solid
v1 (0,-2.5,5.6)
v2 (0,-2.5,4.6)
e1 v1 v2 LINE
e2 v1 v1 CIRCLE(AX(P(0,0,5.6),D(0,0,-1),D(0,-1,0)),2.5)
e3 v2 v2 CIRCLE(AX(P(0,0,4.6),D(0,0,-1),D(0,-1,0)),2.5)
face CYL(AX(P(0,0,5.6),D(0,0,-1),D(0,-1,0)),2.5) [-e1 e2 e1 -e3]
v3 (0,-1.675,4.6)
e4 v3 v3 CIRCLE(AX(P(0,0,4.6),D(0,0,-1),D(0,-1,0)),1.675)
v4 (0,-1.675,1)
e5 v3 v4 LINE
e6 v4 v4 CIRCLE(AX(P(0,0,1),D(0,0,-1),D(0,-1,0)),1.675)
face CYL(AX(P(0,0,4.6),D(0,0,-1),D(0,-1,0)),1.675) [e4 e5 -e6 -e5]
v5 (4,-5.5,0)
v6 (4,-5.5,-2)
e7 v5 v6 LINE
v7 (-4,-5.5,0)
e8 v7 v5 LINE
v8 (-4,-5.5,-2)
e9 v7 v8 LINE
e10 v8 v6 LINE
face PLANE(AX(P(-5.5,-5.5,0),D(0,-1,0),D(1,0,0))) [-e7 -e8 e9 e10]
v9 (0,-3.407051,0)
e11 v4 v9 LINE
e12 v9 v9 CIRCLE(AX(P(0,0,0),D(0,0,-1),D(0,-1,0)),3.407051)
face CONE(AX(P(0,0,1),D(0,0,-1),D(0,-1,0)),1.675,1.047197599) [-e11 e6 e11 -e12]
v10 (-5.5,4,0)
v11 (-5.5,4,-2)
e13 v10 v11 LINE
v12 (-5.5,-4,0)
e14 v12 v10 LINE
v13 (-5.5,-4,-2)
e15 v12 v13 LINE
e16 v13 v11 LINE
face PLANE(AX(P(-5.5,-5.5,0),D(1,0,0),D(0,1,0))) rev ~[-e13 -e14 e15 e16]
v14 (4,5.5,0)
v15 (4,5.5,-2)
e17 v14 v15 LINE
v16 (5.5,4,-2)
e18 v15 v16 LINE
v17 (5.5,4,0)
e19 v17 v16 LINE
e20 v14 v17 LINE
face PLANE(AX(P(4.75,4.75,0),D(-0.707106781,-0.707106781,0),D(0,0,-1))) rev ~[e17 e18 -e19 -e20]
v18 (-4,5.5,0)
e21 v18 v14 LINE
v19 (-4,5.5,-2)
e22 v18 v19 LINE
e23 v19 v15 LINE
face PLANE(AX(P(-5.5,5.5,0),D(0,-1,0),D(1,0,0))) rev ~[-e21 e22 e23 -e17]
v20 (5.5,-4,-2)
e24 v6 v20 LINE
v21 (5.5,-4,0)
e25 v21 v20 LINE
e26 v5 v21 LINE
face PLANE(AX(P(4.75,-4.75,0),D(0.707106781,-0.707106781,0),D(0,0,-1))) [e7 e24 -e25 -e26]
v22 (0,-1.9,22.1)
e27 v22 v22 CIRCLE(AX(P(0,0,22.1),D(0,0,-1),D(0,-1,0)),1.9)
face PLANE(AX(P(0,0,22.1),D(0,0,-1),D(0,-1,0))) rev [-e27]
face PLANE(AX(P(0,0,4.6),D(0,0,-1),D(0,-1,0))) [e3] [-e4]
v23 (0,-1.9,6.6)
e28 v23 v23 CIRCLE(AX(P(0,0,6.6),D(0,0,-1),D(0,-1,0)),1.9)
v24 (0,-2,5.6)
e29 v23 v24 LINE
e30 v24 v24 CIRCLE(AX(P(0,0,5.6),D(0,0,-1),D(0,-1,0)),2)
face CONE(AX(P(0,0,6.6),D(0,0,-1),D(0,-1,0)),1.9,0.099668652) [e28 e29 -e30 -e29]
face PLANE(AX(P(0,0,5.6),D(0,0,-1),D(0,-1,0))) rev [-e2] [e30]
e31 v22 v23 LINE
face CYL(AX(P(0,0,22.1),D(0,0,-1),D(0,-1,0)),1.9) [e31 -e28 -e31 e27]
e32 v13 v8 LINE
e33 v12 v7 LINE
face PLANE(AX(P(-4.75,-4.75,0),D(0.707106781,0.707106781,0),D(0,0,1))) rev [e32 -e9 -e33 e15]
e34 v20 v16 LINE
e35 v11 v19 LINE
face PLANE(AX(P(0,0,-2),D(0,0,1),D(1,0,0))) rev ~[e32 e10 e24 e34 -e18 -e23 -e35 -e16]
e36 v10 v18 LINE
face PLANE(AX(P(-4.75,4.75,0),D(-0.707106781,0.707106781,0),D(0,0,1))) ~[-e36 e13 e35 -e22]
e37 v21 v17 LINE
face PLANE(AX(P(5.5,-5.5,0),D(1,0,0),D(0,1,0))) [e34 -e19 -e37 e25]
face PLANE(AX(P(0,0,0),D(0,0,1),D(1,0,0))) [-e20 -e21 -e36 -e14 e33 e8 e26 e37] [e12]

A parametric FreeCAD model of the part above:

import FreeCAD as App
import Part
import Sketcher
from FreeCAD import Vector
Q = App.Units.Quantity


def edges_at(feature, points):
    """Names of the edges that pass closest to the given points."""
    edges = feature.Shape.Edges
    near = lambda p: min(range(len(edges)), key=lambda i: edges[i].distToShape(Part.Vertex(*p))[0])
    return sorted({f"Edge{near(p) + 1}" for p in points})

doc = App.newDocument("Part")
body = doc.addObject("PartDesign::Body", "Body")

# Sketch on YZ plane
sketch1 = body.newObject("Sketcher::SketchObject", "Sketch")
sketch1.AttachmentSupport = (doc.getObject("YZ_Plane"), [""])
sketch1.MapMode = "FlatFace"
sketch1.addGeometry(Part.LineSegment(Vector(-1.675, 1, 0), Vector(-3.407051, 0, 0)), False)
sketch1.addGeometry(Part.LineSegment(Vector(-3.407051, 0, 0), Vector(0, 0, 0)), False)
sketch1.addGeometry(Part.LineSegment(Vector(0, 0, 0), Vector(0, 22.1, 0)), False)
sketch1.addGeometry(Part.LineSegment(Vector(0, 22.1, 0), Vector(-1.9, 22.1, 0)), False)
sketch1.addGeometry(Part.LineSegment(Vector(-1.9, 22.1, 0), Vector(-1.9, 6.6, 0)), False)
sketch1.addGeometry(Part.LineSegment(Vector(-1.9, 6.6, 0), Vector(-2, 5.6, 0)), False)
sketch1.addGeometry(Part.LineSegment(Vector(-2, 5.6, 0), Vector(-2.5, 5.6, 0)), False)
sketch1.addGeometry(Part.LineSegment(Vector(-2.5, 5.6, 0), Vector(-2.5, 4.6, 0)), False)
sketch1.addGeometry(Part.LineSegment(Vector(-2.5, 4.6, 0), Vector(-1.675, 4.6, 0)), False)
sketch1.addGeometry(Part.LineSegment(Vector(-1.675, 4.6, 0), Vector(-1.675, 1, 0)), False)
sketch1.addConstraint(Sketcher.Constraint("Coincident", 0, 2, 1, 1))
sketch1.addConstraint(Sketcher.Constraint("Coincident", 1, 2, 2, 1))
sketch1.addConstraint(Sketcher.Constraint("Coincident", 2, 2, 3, 1))
sketch1.addConstraint(Sketcher.Constraint("Coincident", 3, 2, 4, 1))
sketch1.addConstraint(Sketcher.Constraint("Coincident", 4, 2, 5, 1))
sketch1.addConstraint(Sketcher.Constraint("Coincident", 5, 2, 6, 1))
sketch1.addConstraint(Sketcher.Constraint("Coincident", 6, 2, 7, 1))
sketch1.addConstraint(Sketcher.Constraint("Coincident", 7, 2, 8, 1))
sketch1.addConstraint(Sketcher.Constraint("Coincident", 8, 2, 9, 1))
sketch1.addConstraint(Sketcher.Constraint("Coincident", 9, 2, 0, 1))
sketch1.addConstraint(Sketcher.Constraint("Horizontal", 1))
sketch1.addConstraint(Sketcher.Constraint("Vertical", 2))
sketch1.addConstraint(Sketcher.Constraint("Horizontal", 3))
sketch1.addConstraint(Sketcher.Constraint("Vertical", 4))
sketch1.addConstraint(Sketcher.Constraint("Horizontal", 6))
sketch1.addConstraint(Sketcher.Constraint("Vertical", 7))
sketch1.addConstraint(Sketcher.Constraint("Horizontal", 8))
sketch1.addConstraint(Sketcher.Constraint("Vertical", 9))
sketch1.addConstraint(Sketcher.Constraint("Coincident", 1, 2, -1, 1))
sketch1.addConstraint(Sketcher.Constraint("DistanceY", 7, 2, 7, 1, 1.0))
sketch1.addConstraint(Sketcher.Constraint("Angle", 0, Q("-150.000003 deg")))
sketch1.addConstraint(Sketcher.Constraint("Distance", 0, 2.0))
sketch1.addConstraint(Sketcher.Constraint("DistanceX", 3, 2, 3, 1, 1.9))
sketch1.addConstraint(Sketcher.Constraint("DistanceX", 6, 2, 6, 1, 0.5))
sketch1.addConstraint(Sketcher.Constraint("DistanceY", 2, 1, 2, 2, 22.1))
sketch1.addConstraint(Sketcher.Constraint("DistanceY", 4, 2, 4, 1, 15.5))
sketch1.addConstraint(Sketcher.Constraint("DistanceY", 9, 2, 9, 1, 3.6))
sketch1.addConstraint(Sketcher.Constraint("DistanceX", 5, 2, -1, 1, 2.0))
sketch1.addConstraint(Sketcher.Constraint("DistanceX", 8, 1, 8, 2, 0.825))
revolution = body.newObject("PartDesign::Revolution", "Revolution")
revolution.Profile = sketch1
revolution.ReferenceAxis = (sketch1, ["V_Axis"])
revolution.Angle = 360

# Sketch on XY plane
sketch2 = body.newObject("Sketcher::SketchObject", "Sketch001")
sketch2.AttachmentSupport = (doc.getObject("XY_Plane"), [""])
sketch2.MapMode = "FlatFace"
sketch2.addGeometry(Part.LineSegment(Vector(-5.5, 5.5, 0), Vector(-5.5, -5.5, 0)), False)
sketch2.addGeometry(Part.LineSegment(Vector(-5.5, -5.5, 0), Vector(5.5, -5.5, 0)), False)
sketch2.addGeometry(Part.LineSegment(Vector(5.5, -5.5, 0), Vector(5.5, 5.5, 0)), False)
sketch2.addGeometry(Part.LineSegment(Vector(5.5, 5.5, 0), Vector(-5.5, 5.5, 0)), False)
sketch2.addConstraint(Sketcher.Constraint("Coincident", 0, 2, 1, 1))
sketch2.addConstraint(Sketcher.Constraint("Coincident", 1, 2, 2, 1))
sketch2.addConstraint(Sketcher.Constraint("Coincident", 2, 2, 3, 1))
sketch2.addConstraint(Sketcher.Constraint("Coincident", 3, 2, 0, 1))
sketch2.addConstraint(Sketcher.Constraint("Vertical", 0))
sketch2.addConstraint(Sketcher.Constraint("Horizontal", 1))
sketch2.addConstraint(Sketcher.Constraint("Vertical", 2))
sketch2.addConstraint(Sketcher.Constraint("Horizontal", 3))
sketch2.addConstraint(Sketcher.Constraint("Symmetric", 0, 2, 2, 2, -1, 1))
sketch2.addConstraint(Sketcher.Constraint("Equal", 3, 0))
sketch2.addConstraint(Sketcher.Constraint("DistanceX", 1, 1, 1, 2, 11.0))
pad1 = body.newObject("PartDesign::Pad", "Pad")
pad1.Profile = sketch2
pad1.Length = 2
pad1.Reversed = True
doc.recompute()

chamfer = body.newObject("PartDesign::Chamfer", "Chamfer")
chamfer.Base = (pad1, edges_at(pad1, [
    (-5.5, 5.5, -1),
    (5.5, 5.5, -1),
    (5.5, -5.5, -1),
    (-5.5, -5.5, -1),
]))
chamfer.Size = 1.5

doc.recompute()
